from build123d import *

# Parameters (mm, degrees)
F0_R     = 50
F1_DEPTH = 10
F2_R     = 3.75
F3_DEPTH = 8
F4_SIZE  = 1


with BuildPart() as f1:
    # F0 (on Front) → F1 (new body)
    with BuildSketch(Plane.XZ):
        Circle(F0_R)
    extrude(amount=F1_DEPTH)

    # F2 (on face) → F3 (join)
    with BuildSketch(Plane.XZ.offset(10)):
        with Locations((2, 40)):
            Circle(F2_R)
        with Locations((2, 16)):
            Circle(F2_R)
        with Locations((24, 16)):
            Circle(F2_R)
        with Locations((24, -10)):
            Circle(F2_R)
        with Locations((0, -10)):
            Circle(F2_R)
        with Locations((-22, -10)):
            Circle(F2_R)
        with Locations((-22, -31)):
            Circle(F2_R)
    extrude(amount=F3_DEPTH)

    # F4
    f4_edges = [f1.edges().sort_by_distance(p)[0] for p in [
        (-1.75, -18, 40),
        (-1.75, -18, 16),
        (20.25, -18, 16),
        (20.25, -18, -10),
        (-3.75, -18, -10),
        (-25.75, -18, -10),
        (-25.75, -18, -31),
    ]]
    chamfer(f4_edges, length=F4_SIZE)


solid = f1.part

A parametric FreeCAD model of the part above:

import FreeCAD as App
import Part
import Sketcher
from FreeCAD import Vector
Q = App.Units.Quantity


def edges_at(feature, points):
    """Names of the edges that pass closest to the given points."""
    edges = feature.Shape.Edges
    near = lambda p: min(range(len(edges)), key=lambda i: edges[i].distToShape(Part.Vertex(*p))[0])
    return sorted({f"Edge{near(p) + 1}" for p in points})

doc = App.newDocument("Part")
body = doc.addObject("PartDesign::Body", "Body")

# Sketch on XZ plane
sketch1 = body.newObject("Sketcher::SketchObject", "Sketch")
sketch1.AttachmentSupport = (doc.getObject("XZ_Plane"), [""])
sketch1.MapMode = "FlatFace"
sketch1.addGeometry(Part.Circle(Vector(0, 0, 0), Vector(0, 0, 1), 50), False)
sketch1.addConstraint([
    Sketcher.Constraint("Coincident", 0, 3, -1, 1),
    Sketcher.Constraint("Diameter", 0, Q("100 mm")),
])
pad1 = body.newObject("PartDesign::Pad", "Pad")
pad1.Profile = sketch1
pad1.Length = 10

# Sketch on XZ plane
sketch2 = body.newObject("Sketcher::SketchObject", "Sketch001")
sketch2.AttachmentSupport = (doc.getObject("XZ_Plane"), [""])
sketch2.MapMode = "FlatFace"
sketch2.AttachmentOffset = App.Placement(Vector(0, 0, 10), App.Rotation())
sketch2.addGeometry([
    Part.Circle(Vector(2, 40, 0), Vector(0, 0, 1), 3.8),  # 0
    Part.Circle(Vector(2, 16, 0), Vector(0, 0, 1), 3.8),  # 1
    Part.Circle(Vector(24, 16, 0), Vector(0, 0, 1), 3.8),  # 2
    Part.Circle(Vector(24, -10, 0), Vector(0, 0, 1), 3.8),  # 3
    Part.Circle(Vector(0, -10, 0), Vector(0, 0, 1), 3.8),  # 4
    Part.Circle(Vector(-22, -10, 0), Vector(0, 0, 1), 3.8),  # 5
    Part.Circle(Vector(-22, -31, 0), Vector(0, 0, 1), 3.8),  # 6
], False)
sketch2.addConstraint([
    Sketcher.Constraint("Equal", 0, 1),
    Sketcher.Constraint("Equal", 1, 2),
    Sketcher.Constraint("Equal", 2, 3),
    Sketcher.Constraint("Equal", 3, 4),
    Sketcher.Constraint("Equal", 4, 5),
    Sketcher.Constraint("Equal", 5, 6),
    Sketcher.Constraint("PointOnObject", 4, 3, -2),
    Sketcher.Constraint("Horizontal", 1, 3, 2, 3),
    Sketcher.Constraint("Horizontal", 3, 3, 4, 3),
    Sketcher.Constraint("Horizontal", 4, 3, 5, 3),
    Sketcher.Constraint("Vertical", 0, 3, 1, 3),
    Sketcher.Constraint("Vertical", 2, 3, 3, 3),
    Sketcher.Constraint("Vertical", 5, 3, 6, 3),
    Sketcher.Constraint("Diameter", 0, Q("7.5 mm")),
    Sketcher.Constraint("DistanceX", -1, 1, 0, 3, Q("2 mm")),
    Sketcher.Constraint("DistanceY", -1, 1, 0, 3, Q("40 mm")),
    Sketcher.Constraint("DistanceY", -1, 1, 1, 3, Q("16 mm")),
    Sketcher.Constraint("DistanceX", -1, 1, 2, 3, Q("24 mm")),
    Sketcher.Constraint("DistanceY", 3, 3, -1, 1, Q("10 mm")),
    Sketcher.Constraint("DistanceX", 5, 3, -1, 1, Q("22 mm")),
    Sketcher.Constraint("DistanceY", 6, 3, -1, 1, Q("31 mm")),
])
pad2 = body.newObject("PartDesign::Pad", "Pad001")
pad2.Profile = sketch2
pad2.Length = 8
doc.recompute()

chamfer = body.newObject("PartDesign::Chamfer", "Chamfer")
chamfer.Base = (pad2, edges_at(pad2, [
    (-1.75, -18, 40),
    (-1.75, -18, 16),
    (20.25, -18, 16),
    (20.25, -18, -10),
    (-3.75, -18, -10),
    (-25.75, -18, -10),
    (-25.75, -18, -31),
]))
chamfer.Size = 1

doc.recompute()
